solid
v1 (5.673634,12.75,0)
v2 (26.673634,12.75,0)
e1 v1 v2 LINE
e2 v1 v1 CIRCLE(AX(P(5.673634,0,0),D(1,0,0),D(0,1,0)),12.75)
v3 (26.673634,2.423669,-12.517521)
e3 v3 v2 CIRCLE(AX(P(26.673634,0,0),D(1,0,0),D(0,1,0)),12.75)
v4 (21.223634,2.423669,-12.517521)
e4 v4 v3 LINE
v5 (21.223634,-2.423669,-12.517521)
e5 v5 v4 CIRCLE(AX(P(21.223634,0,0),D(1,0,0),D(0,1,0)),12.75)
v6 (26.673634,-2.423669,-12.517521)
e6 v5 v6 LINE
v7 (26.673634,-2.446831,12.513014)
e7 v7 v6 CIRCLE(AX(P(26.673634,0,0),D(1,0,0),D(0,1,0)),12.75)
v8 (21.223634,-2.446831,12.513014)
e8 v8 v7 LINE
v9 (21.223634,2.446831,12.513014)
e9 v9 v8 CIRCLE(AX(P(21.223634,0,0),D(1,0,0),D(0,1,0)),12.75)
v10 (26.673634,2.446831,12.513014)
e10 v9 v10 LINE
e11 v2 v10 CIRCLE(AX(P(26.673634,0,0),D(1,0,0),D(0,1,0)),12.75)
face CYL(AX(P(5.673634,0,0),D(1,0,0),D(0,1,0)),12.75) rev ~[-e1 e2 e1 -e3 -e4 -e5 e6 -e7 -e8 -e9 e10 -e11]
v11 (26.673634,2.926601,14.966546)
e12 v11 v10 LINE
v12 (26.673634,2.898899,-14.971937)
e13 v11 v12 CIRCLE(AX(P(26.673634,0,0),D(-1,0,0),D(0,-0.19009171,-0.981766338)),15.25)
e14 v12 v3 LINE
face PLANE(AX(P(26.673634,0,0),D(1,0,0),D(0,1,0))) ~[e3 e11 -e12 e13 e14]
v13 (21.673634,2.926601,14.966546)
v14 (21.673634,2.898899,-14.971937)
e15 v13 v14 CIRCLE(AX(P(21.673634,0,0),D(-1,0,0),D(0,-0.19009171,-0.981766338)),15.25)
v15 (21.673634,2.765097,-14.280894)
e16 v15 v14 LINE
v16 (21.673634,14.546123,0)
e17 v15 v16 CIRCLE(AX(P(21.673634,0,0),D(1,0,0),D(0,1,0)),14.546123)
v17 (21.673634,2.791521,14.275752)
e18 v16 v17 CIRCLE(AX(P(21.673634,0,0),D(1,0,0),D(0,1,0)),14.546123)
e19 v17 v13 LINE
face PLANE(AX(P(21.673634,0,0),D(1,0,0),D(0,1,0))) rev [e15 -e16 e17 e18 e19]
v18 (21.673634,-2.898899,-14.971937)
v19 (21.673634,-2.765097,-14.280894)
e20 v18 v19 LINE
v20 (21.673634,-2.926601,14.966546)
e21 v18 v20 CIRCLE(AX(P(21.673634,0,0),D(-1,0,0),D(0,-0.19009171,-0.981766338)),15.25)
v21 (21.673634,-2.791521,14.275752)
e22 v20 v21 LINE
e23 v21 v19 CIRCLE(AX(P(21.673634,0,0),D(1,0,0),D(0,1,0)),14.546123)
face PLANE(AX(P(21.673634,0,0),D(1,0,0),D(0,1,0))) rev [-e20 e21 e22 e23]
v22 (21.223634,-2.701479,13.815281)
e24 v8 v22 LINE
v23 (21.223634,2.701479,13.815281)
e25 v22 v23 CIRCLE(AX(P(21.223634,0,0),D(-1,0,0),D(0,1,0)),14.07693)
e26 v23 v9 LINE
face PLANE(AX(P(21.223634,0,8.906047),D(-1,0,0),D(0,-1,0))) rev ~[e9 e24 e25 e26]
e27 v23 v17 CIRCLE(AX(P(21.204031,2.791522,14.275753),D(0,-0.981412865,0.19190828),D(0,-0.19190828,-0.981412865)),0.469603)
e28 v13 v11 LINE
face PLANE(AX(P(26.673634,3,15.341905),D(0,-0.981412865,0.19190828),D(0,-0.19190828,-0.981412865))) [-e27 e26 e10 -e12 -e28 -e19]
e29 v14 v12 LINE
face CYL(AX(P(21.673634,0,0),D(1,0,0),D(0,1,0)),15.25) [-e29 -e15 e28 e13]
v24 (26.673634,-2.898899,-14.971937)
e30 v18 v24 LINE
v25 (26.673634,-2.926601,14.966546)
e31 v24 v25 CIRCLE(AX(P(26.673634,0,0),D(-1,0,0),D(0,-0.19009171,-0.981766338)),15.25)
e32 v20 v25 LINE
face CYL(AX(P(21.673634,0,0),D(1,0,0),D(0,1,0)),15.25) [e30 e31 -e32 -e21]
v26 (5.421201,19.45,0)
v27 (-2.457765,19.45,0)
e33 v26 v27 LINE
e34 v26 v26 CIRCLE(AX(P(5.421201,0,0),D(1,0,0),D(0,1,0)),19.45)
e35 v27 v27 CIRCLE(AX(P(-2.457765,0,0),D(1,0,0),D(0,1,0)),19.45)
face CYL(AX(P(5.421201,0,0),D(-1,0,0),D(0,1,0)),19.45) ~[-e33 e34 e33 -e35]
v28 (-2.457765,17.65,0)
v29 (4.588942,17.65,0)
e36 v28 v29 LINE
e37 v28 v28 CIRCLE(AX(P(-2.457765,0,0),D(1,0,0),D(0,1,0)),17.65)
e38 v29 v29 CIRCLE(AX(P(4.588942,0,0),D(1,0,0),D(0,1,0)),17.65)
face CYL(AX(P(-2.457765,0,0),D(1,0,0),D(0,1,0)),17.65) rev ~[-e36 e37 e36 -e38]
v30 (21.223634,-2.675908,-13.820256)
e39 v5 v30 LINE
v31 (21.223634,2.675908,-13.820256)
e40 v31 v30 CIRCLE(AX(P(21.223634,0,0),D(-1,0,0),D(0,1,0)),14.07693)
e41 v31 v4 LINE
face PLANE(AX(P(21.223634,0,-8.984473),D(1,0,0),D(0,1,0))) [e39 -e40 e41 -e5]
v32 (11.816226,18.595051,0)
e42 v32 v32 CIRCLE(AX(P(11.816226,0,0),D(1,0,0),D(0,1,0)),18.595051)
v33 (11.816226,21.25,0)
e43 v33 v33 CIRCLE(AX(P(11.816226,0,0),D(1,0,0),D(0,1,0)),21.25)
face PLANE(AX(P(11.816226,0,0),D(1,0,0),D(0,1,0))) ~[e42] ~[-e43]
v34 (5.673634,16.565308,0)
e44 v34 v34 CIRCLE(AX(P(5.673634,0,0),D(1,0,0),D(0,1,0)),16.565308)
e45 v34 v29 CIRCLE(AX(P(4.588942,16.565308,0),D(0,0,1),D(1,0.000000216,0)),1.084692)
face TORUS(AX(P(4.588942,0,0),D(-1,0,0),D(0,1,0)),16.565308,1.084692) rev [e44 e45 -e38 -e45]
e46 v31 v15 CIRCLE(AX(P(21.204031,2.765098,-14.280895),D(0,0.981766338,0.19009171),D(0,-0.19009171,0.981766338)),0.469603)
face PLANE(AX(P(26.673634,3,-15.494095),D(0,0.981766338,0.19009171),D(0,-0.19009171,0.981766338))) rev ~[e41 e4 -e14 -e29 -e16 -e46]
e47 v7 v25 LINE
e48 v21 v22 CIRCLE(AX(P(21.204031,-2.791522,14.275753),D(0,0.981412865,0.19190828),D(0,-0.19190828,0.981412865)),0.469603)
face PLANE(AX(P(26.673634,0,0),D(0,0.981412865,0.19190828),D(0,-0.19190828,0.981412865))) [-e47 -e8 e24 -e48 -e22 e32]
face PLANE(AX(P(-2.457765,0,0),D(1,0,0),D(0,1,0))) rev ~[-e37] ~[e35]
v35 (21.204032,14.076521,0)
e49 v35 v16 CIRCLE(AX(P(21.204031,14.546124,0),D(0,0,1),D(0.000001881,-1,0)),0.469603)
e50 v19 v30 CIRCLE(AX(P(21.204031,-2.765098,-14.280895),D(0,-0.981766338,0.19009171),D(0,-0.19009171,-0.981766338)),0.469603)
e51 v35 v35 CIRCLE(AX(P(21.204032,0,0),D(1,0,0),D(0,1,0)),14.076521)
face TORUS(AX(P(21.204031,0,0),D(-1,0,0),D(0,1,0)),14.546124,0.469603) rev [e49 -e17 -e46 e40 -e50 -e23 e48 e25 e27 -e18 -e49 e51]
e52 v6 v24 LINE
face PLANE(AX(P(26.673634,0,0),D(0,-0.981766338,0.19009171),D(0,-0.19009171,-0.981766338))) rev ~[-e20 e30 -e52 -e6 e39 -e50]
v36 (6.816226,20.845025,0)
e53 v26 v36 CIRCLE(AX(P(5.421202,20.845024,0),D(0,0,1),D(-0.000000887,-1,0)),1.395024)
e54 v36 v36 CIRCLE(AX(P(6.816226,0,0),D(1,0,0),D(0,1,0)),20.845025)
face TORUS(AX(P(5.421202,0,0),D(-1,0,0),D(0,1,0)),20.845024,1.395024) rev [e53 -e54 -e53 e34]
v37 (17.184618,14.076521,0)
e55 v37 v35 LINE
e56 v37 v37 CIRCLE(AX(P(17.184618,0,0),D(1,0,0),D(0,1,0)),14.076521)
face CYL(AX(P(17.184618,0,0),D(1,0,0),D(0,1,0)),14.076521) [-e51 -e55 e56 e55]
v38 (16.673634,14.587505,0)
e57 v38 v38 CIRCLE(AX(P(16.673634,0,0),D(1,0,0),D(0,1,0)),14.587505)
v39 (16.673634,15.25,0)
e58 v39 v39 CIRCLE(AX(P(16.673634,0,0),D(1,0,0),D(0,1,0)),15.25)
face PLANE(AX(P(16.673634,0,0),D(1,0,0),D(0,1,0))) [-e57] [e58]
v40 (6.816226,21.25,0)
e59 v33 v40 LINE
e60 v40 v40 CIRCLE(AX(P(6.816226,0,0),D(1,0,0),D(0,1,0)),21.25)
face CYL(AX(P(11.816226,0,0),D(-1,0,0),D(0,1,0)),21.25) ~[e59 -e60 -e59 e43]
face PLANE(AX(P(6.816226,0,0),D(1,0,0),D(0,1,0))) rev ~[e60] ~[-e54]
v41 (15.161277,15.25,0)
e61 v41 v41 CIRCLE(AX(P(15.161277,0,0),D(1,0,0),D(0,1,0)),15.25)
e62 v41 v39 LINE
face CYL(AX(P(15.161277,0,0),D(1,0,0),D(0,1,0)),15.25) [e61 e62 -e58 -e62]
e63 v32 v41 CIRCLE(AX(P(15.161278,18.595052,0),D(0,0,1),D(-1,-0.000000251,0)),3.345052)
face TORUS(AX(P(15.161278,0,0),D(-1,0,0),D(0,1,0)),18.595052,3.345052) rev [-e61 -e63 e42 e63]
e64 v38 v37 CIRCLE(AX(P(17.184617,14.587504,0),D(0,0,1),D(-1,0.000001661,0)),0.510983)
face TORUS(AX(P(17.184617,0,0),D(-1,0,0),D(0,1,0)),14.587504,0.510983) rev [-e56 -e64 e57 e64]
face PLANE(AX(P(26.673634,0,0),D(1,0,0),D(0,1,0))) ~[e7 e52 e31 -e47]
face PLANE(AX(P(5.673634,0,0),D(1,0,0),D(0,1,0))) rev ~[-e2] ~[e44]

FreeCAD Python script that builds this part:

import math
import FreeCAD as App
import Part
import Sketcher

V = App.Vector


def add_polygon(sketch, points):
    """Adds a closed chain of lines whose ends are joined by coincident constraints."""
    first, n = sketch.GeometryCount, len(points)
    for a, b in zip(points, points[1:] + points[:1]):
        sketch.addGeometry(Part.LineSegment(App.Vector(*a, 0), App.Vector(*b, 0)), False)
    for i in range(n):
        sketch.addConstraint(Sketcher.Constraint("Coincident", first + i, 2, first + (i + 1) % n, 1))

doc = App.newDocument("Part")
body = doc.addObject("PartDesign::Body", "Body")

# Sketch on XY plane
sketch1 = doc.addObject("Sketcher::SketchObject", "Sketch")
body.addObject(sketch1)
sketch1.AttachmentSupport = (doc.XY_Plane, [""])
sketch1.MapMode = "FlatFace"
sketch1.addGeometry([
    Part.LineSegment(V(11.82, 18.6, 0), V(11.82, 21.25, 0)),  # 0
    Part.LineSegment(V(11.82, 21.25, 0), V(6.82, 21.25, 0)),  # 1
    Part.LineSegment(V(6.82, 21.25, 0), V(6.82, 20.85, 0)),  # 2
    Part.ArcOfCircle(Part.Circle(V(5.42, 20.85, 0), V(0, 0, 1), 1.4), math.radians(-90), math.radians(0)),  # 3
    Part.LineSegment(V(5.42, 19.45, 0), V(-2.46, 19.45, 0)),  # 4
    Part.LineSegment(V(-2.46, 19.45, 0), V(-2.46, 17.65, 0)),  # 5
    Part.LineSegment(V(-2.46, 17.65, 0), V(4.59, 17.65, 0)),  # 6
    Part.ArcOfCircle(Part.Circle(V(4.59, 16.57, 0), V(0, 0, 1), 1.08), math.radians(0), math.radians(90)),  # 7
    Part.LineSegment(V(5.67, 16.57, 0), V(5.67, 12.75, 0)),  # 8
    Part.LineSegment(V(5.67, 12.75, 0), V(26.67, 12.75, 0)),  # 9
    Part.LineSegment(V(26.67, 12.75, 0), V(26.67, 15.25, 0)),  # 10
    Part.LineSegment(V(26.67, 15.25, 0), V(21.67, 15.25, 0)),  # 11
    Part.LineSegment(V(21.67, 15.25, 0), V(21.67, 14.55, 0)),  # 12
    Part.ArcOfCircle(Part.Circle(V(21.2, 14.55, 0), V(0, 0, 1), 0.47), math.radians(-90), math.radians(0)),  # 13
    Part.LineSegment(V(21.2, 14.08, 0), V(17.18, 14.08, 0)),  # 14
    Part.ArcOfCircle(Part.Circle(V(17.18, 14.59, 0), V(0, 0, 1), 0.51), math.radians(180), math.radians(270)),  # 15
    Part.LineSegment(V(16.67, 14.59, 0), V(16.67, 15.25, 0)),  # 16
    Part.LineSegment(V(16.67, 15.25, 0), V(15.16, 15.25, 0)),  # 17
    Part.ArcOfCircle(Part.Circle(V(15.16, 18.6, 0), V(0, 0, 1), 3.35), math.radians(-180), math.radians(-90)),  # 18
], False)
sketch1.addConstraint([
    Sketcher.Constraint("Coincident", 0, 2, 1, 1),
    Sketcher.Constraint("Coincident", 1, 2, 2, 1),
    Sketcher.Constraint("Tangent", 2, 2, 3, 2),
    Sketcher.Constraint("Tangent", 3, 1, 4, 1),
    Sketcher.Constraint("Coincident", 4, 2, 5, 1),
    Sketcher.Constraint("Coincident", 5, 2, 6, 1),
    Sketcher.Constraint("Tangent", 6, 2, 7, 2),
    Sketcher.Constraint("Tangent", 7, 1, 8, 1),
    Sketcher.Constraint("Coincident", 8, 2, 9, 1),
    Sketcher.Constraint("Coincident", 9, 2, 10, 1),
    Sketcher.Constraint("Coincident", 10, 2, 11, 1),
    Sketcher.Constraint("Coincident", 11, 2, 12, 1),
    Sketcher.Constraint("Tangent", 12, 2, 13, 2),
    Sketcher.Constraint("Tangent", 13, 1, 14, 1),
    Sketcher.Constraint("Tangent", 14, 2, 15, 2),
    Sketcher.Constraint("Tangent", 15, 1, 16, 1),
    Sketcher.Constraint("Coincident", 16, 2, 17, 1),
    Sketcher.Constraint("Tangent", 17, 2, 18, 2),
    Sketcher.Constraint("Tangent", 18, 1, 0, 1),
    Sketcher.Constraint("Vertical", 0),
    Sketcher.Constraint("Horizontal", 1),
    Sketcher.Constraint("Vertical", 2),
    Sketcher.Constraint("Horizontal", 4),
    Sketcher.Constraint("Vertical", 5),
    Sketcher.Constraint("Horizontal", 6),
    Sketcher.Constraint("Vertical", 8),
    Sketcher.Constraint("Horizontal", 9),
    Sketcher.Constraint("Vertical", 10),
    Sketcher.Constraint("Horizontal", 11),
    Sketcher.Constraint("Vertical", 12),
    Sketcher.Constraint("Horizontal", 14),
    Sketcher.Constraint("Vertical", 16),
    Sketcher.Constraint("Horizontal", 17),
    Sketcher.Constraint("Horizontal", 11, 2, 16, 2),
    Sketcher.Constraint("Equal", 1, 11),
    Sketcher.Constraint("DistanceX", 1, 2, 1, 1, 5.0),
    Sketcher.Constraint("DistanceX", 9, 1, 9, 2, 21.0),
    Sketcher.Constraint("DistanceY", 5, 2, 5, 1, 1.8),
    Sketcher.Constraint("DistanceY", 10, 1, 10, 2, 2.5),
    Sketcher.Constraint("DistanceY", 10, 2, 0, 2, 6.0),
    Sketcher.Constraint("DistanceY", 3, 1, 1, 2, 1.8),
    Sketcher.Constraint("DistanceY", -1, 1, 0, 2, 21.25),
    Sketcher.Constraint("Radius", 18, 3.345052),
    Sketcher.Constraint("Radius", 3, 1.395024),
    Sketcher.Constraint("Radius", 7, 1.084692),
    Sketcher.Constraint("Radius", 13, 0.469603),
    Sketcher.Constraint("Radius", 15, 0.510983),
    Sketcher.Constraint("DistanceX", -1, 1, 3, 1, 5.421201),
    Sketcher.Constraint("DistanceY", 13, 3, 3, 3, 6.2989),
    Sketcher.Constraint("DistanceX", 4, 2, 4, 1, 7.878966),
    Sketcher.Constraint("DistanceX", 6, 1, 6, 2, 7.046707),
    Sketcher.Constraint("DistanceX", 14, 2, 14, 1, 4.019414),
])
revolution = doc.addObject("PartDesign::Revolution", "Revolution")
body.addObject(revolution)
revolution.Profile = sketch1
revolution.ReferenceAxis = (sketch1, ["H_Axis"])
revolution.Angle = 360

# Sketch on YZ plane
sketch2 = doc.addObject("Sketcher::SketchObject", "Sketch001")
body.addObject(sketch2)
sketch2.AttachmentSupport = (doc.YZ_Plane, [""])
sketch2.MapMode = "FlatFace"
sketch2.AttachmentOffset = App.Placement(V(0, 0, 26.673634), App.Rotation())
add_polygon(sketch2, [(0, 0), (-3, -15), (3, -15)])  # lines 0-2
sketch2.addConstraint([
    Sketcher.Constraint("Horizontal", 1),
    Sketcher.Constraint("Coincident", 2, 2, -1, 1),
    Sketcher.Constraint("Equal", 0, 2),
    Sketcher.Constraint("DistanceX", 1, 1, 1, 2, 6.0),
    Sketcher.Constraint("Distance", 0, 15.781856),
])
pocket1 = doc.addObject("PartDesign::Pocket", "Pocket")
body.addObject(pocket1)
pocket1.Profile = sketch2
pocket1.Length = 5.45

# Sketch on YZ plane
sketch3 = doc.addObject("Sketcher::SketchObject", "Sketch002")
body.addObject(sketch3)
sketch3.AttachmentSupport = (doc.YZ_Plane, [""])
sketch3.MapMode = "FlatFace"
sketch3.AttachmentOffset = App.Placement(V(0, 0, 26.673634), App.Rotation())
add_polygon(sketch3, [(-3, 15), (0, 0), (3, 15)])  # lines 0-2
sketch3.addConstraint([
    Sketcher.Constraint("Horizontal", 2),
    Sketcher.Constraint("Coincident", 0, 2, -1, 1),
    Sketcher.Constraint("Equal", 0, 1),
    Sketcher.Constraint("DistanceX", 2, 2, 2, 1, 6.0),
    Sketcher.Constraint("Distance", 0, 15.632468),
])
pocket2 = doc.addObject("PartDesign::Pocket", "Pocket001")
body.addObject(pocket2)
pocket2.Profile = sketch3
pocket2.Length = 5.45

doc.recompute()
